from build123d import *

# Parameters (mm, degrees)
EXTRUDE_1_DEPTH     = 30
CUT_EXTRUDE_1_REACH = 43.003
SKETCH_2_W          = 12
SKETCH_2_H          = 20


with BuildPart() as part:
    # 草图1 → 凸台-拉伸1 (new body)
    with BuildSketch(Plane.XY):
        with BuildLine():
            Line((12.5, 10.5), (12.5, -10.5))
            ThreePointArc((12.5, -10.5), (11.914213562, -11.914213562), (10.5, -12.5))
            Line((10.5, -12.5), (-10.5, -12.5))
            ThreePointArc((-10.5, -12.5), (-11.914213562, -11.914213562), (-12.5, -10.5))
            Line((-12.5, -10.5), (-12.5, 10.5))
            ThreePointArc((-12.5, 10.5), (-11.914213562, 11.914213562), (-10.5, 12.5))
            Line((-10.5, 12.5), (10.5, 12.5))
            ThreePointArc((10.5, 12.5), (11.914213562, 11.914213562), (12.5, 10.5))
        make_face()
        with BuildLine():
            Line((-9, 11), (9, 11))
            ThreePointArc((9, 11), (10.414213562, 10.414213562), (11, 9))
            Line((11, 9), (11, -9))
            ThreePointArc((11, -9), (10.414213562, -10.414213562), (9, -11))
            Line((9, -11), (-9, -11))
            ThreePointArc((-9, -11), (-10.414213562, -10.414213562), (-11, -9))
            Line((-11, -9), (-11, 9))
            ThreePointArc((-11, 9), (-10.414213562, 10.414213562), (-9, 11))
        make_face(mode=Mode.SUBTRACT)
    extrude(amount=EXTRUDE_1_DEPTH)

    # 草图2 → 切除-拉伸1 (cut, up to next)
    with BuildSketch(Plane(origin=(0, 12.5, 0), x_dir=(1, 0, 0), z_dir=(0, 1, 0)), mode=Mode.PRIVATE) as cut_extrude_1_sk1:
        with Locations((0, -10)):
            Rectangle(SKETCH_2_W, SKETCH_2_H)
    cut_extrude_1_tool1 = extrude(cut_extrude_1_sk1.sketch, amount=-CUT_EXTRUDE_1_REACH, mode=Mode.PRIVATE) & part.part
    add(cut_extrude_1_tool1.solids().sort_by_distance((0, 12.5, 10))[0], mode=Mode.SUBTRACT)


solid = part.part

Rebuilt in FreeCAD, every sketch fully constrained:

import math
import FreeCAD as App
import Part
import Sketcher

V = App.Vector
Q = App.Units.Quantity

doc = App.newDocument("Part")
body = doc.addObject("PartDesign::Body", "Body")

# Sketch on XY plane
sketch1 = body.newObject("Sketcher::SketchObject", "Sketch")
sketch1.AttachmentSupport = (doc.getObject("XY_Plane"), [""])
sketch1.MapMode = "FlatFace"
sketch1.addGeometry([
    Part.LineSegment(V(12.5, -10.5, 0), V(12.5, 10.5, 0)),  # 0
    Part.ArcOfCircle(Part.Circle(V(10.5, 10.5, 0), V(0, 0, 1), 2), math.radians(0), math.radians(90)),  # 1
    Part.LineSegment(V(10.5, 12.5, 0), V(-10.5, 12.5, 0)),  # 2
    Part.ArcOfCircle(Part.Circle(V(-10.5, 10.5, 0), V(0, 0, 1), 2), math.radians(90), math.radians(180)),  # 3
    Part.LineSegment(V(-12.5, 10.5, 0), V(-12.5, -10.5, 0)),  # 4
    Part.ArcOfCircle(Part.Circle(V(-10.5, -10.5, 0), V(0, 0, 1), 2), math.radians(-180), math.radians(-90)),  # 5
    Part.LineSegment(V(-10.5, -12.5, 0), V(10.5, -12.5, 0)),  # 6
    Part.ArcOfCircle(Part.Circle(V(10.5, -10.5, 0), V(0, 0, 1), 2), math.radians(-90), math.radians(0)),  # 7
    Part.LineSegment(V(-9, 11, 0), V(9, 11, 0)),  # 8
    Part.ArcOfCircle(Part.Circle(V(9, 9, 0), V(0, 0, 1), 2), math.radians(0), math.radians(90)),  # 9
    Part.LineSegment(V(11, 9, 0), V(11, -9, 0)),  # 10
    Part.ArcOfCircle(Part.Circle(V(9, -9, 0), V(0, 0, 1), 2), math.radians(-90), math.radians(0)),  # 11
    Part.LineSegment(V(9, -11, 0), V(-9, -11, 0)),  # 12
    Part.ArcOfCircle(Part.Circle(V(-9, -9, 0), V(0, 0, 1), 2), math.radians(-180), math.radians(-90)),  # 13
    Part.LineSegment(V(-11, -9, 0), V(-11, 9, 0)),  # 14
    Part.ArcOfCircle(Part.Circle(V(-9, 9, 0), V(0, 0, 1), 2), math.radians(90), math.radians(180)),  # 15
], False)
sketch1.addConstraint([
    Sketcher.Constraint("Tangent", 0, 2, 1, 1),
    Sketcher.Constraint("Tangent", 1, 2, 2, 1),
    Sketcher.Constraint("Tangent", 2, 2, 3, 1),
    Sketcher.Constraint("Tangent", 3, 2, 4, 1),
    Sketcher.Constraint("Tangent", 4, 2, 5, 1),
    Sketcher.Constraint("Tangent", 5, 2, 6, 1),
    Sketcher.Constraint("Tangent", 6, 2, 7, 1),
    Sketcher.Constraint("Tangent", 7, 2, 0, 1),
    Sketcher.Constraint("Tangent", 8, 2, 9, 2),
    Sketcher.Constraint("Tangent", 9, 1, 10, 1),
    Sketcher.Constraint("Tangent", 10, 2, 11, 2),
    Sketcher.Constraint("Tangent", 11, 1, 12, 1),
    Sketcher.Constraint("Tangent", 12, 2, 13, 2),
    Sketcher.Constraint("Tangent", 13, 1, 14, 1),
    Sketcher.Constraint("Tangent", 14, 2, 15, 2),
    Sketcher.Constraint("Tangent", 15, 1, 8, 1),
    Sketcher.Constraint("Vertical", 0),
    Sketcher.Constraint("Horizontal", 2),
    Sketcher.Constraint("Vertical", 4),
    Sketcher.Constraint("Horizontal", 6),
    Sketcher.Constraint("Horizontal", 8),
    Sketcher.Constraint("Vertical", 10),
    Sketcher.Constraint("Horizontal", 12),
    Sketcher.Constraint("Vertical", 14),
    Sketcher.Constraint("Equal", 1, 3),
    Sketcher.Constraint("Equal", 3, 5),
    Sketcher.Constraint("Equal", 5, 7),
    Sketcher.Constraint("Equal", 7, 9),
    Sketcher.Constraint("Equal", 9, 11),
    Sketcher.Constraint("Equal", 11, 13),
    Sketcher.Constraint("Equal", 13, 15),
    Sketcher.Constraint("Symmetric", 1, 3, 5, 3, -1, 1),
    Sketcher.Constraint("Symmetric", 9, 3, 13, 3, -1, 1),
    Sketcher.Constraint("Equal", 6, 0),
    Sketcher.Constraint("Equal", 12, 10),
    Sketcher.Constraint("Radius", 1, Q("2 mm")),
    Sketcher.Constraint("DistanceX", 2, 2, 2, 1, Q("21 mm")),
    Sketcher.Constraint("DistanceX", 8, 1, 8, 2, Q("18 mm")),
])
pad1 = body.newObject("PartDesign::Pad", "Pad")
pad1.Profile = sketch1
pad1.Length = 30

# Sketch on XZ plane
sketch2 = body.newObject("Sketcher::SketchObject", "Sketch001")
sketch2.AttachmentSupport = (doc.getObject("XZ_Plane"), [""])
sketch2.MapMode = "FlatFace"
sketch2.AttachmentOffset = App.Placement(V(0, 0, -12.5), App.Rotation())
sketch2.addGeometry([
    Part.LineSegment(V(-6, 0, 0), V(-6, 20, 0)),
    Part.LineSegment(V(-6, 20, 0), V(6, 20, 0)),
    Part.LineSegment(V(6, 20, 0), V(6, 0, 0)),
    Part.LineSegment(V(6, 0, 0), V(-6, 0, 0)),
], False)
sketch2.addConstraint([
    Sketcher.Constraint("Coincident", 0, 2, 1, 1),
    Sketcher.Constraint("Coincident", 1, 2, 2, 1),
    Sketcher.Constraint("Coincident", 2, 2, 3, 1),
    Sketcher.Constraint("Coincident", 3, 2, 0, 1),
    Sketcher.Constraint("Vertical", 0),
    Sketcher.Constraint("Horizontal", 1),
    Sketcher.Constraint("Vertical", 2),
    Sketcher.Constraint("Horizontal", 3),
    Sketcher.Constraint("Symmetric", 2, 2, 3, 2, -1, 1),
    Sketcher.Constraint("DistanceX", 1, 1, 1, 2, Q("12 mm")),
    Sketcher.Constraint("DistanceY", 0, 1, 0, 2, Q("20 mm")),
])
pocket1 = body.newObject("PartDesign::Pocket", "Pocket")
pocket1.Profile = sketch2
pocket1.Type = "UpToFirst"
pocket1.Reversed = True

doc.recompute()
